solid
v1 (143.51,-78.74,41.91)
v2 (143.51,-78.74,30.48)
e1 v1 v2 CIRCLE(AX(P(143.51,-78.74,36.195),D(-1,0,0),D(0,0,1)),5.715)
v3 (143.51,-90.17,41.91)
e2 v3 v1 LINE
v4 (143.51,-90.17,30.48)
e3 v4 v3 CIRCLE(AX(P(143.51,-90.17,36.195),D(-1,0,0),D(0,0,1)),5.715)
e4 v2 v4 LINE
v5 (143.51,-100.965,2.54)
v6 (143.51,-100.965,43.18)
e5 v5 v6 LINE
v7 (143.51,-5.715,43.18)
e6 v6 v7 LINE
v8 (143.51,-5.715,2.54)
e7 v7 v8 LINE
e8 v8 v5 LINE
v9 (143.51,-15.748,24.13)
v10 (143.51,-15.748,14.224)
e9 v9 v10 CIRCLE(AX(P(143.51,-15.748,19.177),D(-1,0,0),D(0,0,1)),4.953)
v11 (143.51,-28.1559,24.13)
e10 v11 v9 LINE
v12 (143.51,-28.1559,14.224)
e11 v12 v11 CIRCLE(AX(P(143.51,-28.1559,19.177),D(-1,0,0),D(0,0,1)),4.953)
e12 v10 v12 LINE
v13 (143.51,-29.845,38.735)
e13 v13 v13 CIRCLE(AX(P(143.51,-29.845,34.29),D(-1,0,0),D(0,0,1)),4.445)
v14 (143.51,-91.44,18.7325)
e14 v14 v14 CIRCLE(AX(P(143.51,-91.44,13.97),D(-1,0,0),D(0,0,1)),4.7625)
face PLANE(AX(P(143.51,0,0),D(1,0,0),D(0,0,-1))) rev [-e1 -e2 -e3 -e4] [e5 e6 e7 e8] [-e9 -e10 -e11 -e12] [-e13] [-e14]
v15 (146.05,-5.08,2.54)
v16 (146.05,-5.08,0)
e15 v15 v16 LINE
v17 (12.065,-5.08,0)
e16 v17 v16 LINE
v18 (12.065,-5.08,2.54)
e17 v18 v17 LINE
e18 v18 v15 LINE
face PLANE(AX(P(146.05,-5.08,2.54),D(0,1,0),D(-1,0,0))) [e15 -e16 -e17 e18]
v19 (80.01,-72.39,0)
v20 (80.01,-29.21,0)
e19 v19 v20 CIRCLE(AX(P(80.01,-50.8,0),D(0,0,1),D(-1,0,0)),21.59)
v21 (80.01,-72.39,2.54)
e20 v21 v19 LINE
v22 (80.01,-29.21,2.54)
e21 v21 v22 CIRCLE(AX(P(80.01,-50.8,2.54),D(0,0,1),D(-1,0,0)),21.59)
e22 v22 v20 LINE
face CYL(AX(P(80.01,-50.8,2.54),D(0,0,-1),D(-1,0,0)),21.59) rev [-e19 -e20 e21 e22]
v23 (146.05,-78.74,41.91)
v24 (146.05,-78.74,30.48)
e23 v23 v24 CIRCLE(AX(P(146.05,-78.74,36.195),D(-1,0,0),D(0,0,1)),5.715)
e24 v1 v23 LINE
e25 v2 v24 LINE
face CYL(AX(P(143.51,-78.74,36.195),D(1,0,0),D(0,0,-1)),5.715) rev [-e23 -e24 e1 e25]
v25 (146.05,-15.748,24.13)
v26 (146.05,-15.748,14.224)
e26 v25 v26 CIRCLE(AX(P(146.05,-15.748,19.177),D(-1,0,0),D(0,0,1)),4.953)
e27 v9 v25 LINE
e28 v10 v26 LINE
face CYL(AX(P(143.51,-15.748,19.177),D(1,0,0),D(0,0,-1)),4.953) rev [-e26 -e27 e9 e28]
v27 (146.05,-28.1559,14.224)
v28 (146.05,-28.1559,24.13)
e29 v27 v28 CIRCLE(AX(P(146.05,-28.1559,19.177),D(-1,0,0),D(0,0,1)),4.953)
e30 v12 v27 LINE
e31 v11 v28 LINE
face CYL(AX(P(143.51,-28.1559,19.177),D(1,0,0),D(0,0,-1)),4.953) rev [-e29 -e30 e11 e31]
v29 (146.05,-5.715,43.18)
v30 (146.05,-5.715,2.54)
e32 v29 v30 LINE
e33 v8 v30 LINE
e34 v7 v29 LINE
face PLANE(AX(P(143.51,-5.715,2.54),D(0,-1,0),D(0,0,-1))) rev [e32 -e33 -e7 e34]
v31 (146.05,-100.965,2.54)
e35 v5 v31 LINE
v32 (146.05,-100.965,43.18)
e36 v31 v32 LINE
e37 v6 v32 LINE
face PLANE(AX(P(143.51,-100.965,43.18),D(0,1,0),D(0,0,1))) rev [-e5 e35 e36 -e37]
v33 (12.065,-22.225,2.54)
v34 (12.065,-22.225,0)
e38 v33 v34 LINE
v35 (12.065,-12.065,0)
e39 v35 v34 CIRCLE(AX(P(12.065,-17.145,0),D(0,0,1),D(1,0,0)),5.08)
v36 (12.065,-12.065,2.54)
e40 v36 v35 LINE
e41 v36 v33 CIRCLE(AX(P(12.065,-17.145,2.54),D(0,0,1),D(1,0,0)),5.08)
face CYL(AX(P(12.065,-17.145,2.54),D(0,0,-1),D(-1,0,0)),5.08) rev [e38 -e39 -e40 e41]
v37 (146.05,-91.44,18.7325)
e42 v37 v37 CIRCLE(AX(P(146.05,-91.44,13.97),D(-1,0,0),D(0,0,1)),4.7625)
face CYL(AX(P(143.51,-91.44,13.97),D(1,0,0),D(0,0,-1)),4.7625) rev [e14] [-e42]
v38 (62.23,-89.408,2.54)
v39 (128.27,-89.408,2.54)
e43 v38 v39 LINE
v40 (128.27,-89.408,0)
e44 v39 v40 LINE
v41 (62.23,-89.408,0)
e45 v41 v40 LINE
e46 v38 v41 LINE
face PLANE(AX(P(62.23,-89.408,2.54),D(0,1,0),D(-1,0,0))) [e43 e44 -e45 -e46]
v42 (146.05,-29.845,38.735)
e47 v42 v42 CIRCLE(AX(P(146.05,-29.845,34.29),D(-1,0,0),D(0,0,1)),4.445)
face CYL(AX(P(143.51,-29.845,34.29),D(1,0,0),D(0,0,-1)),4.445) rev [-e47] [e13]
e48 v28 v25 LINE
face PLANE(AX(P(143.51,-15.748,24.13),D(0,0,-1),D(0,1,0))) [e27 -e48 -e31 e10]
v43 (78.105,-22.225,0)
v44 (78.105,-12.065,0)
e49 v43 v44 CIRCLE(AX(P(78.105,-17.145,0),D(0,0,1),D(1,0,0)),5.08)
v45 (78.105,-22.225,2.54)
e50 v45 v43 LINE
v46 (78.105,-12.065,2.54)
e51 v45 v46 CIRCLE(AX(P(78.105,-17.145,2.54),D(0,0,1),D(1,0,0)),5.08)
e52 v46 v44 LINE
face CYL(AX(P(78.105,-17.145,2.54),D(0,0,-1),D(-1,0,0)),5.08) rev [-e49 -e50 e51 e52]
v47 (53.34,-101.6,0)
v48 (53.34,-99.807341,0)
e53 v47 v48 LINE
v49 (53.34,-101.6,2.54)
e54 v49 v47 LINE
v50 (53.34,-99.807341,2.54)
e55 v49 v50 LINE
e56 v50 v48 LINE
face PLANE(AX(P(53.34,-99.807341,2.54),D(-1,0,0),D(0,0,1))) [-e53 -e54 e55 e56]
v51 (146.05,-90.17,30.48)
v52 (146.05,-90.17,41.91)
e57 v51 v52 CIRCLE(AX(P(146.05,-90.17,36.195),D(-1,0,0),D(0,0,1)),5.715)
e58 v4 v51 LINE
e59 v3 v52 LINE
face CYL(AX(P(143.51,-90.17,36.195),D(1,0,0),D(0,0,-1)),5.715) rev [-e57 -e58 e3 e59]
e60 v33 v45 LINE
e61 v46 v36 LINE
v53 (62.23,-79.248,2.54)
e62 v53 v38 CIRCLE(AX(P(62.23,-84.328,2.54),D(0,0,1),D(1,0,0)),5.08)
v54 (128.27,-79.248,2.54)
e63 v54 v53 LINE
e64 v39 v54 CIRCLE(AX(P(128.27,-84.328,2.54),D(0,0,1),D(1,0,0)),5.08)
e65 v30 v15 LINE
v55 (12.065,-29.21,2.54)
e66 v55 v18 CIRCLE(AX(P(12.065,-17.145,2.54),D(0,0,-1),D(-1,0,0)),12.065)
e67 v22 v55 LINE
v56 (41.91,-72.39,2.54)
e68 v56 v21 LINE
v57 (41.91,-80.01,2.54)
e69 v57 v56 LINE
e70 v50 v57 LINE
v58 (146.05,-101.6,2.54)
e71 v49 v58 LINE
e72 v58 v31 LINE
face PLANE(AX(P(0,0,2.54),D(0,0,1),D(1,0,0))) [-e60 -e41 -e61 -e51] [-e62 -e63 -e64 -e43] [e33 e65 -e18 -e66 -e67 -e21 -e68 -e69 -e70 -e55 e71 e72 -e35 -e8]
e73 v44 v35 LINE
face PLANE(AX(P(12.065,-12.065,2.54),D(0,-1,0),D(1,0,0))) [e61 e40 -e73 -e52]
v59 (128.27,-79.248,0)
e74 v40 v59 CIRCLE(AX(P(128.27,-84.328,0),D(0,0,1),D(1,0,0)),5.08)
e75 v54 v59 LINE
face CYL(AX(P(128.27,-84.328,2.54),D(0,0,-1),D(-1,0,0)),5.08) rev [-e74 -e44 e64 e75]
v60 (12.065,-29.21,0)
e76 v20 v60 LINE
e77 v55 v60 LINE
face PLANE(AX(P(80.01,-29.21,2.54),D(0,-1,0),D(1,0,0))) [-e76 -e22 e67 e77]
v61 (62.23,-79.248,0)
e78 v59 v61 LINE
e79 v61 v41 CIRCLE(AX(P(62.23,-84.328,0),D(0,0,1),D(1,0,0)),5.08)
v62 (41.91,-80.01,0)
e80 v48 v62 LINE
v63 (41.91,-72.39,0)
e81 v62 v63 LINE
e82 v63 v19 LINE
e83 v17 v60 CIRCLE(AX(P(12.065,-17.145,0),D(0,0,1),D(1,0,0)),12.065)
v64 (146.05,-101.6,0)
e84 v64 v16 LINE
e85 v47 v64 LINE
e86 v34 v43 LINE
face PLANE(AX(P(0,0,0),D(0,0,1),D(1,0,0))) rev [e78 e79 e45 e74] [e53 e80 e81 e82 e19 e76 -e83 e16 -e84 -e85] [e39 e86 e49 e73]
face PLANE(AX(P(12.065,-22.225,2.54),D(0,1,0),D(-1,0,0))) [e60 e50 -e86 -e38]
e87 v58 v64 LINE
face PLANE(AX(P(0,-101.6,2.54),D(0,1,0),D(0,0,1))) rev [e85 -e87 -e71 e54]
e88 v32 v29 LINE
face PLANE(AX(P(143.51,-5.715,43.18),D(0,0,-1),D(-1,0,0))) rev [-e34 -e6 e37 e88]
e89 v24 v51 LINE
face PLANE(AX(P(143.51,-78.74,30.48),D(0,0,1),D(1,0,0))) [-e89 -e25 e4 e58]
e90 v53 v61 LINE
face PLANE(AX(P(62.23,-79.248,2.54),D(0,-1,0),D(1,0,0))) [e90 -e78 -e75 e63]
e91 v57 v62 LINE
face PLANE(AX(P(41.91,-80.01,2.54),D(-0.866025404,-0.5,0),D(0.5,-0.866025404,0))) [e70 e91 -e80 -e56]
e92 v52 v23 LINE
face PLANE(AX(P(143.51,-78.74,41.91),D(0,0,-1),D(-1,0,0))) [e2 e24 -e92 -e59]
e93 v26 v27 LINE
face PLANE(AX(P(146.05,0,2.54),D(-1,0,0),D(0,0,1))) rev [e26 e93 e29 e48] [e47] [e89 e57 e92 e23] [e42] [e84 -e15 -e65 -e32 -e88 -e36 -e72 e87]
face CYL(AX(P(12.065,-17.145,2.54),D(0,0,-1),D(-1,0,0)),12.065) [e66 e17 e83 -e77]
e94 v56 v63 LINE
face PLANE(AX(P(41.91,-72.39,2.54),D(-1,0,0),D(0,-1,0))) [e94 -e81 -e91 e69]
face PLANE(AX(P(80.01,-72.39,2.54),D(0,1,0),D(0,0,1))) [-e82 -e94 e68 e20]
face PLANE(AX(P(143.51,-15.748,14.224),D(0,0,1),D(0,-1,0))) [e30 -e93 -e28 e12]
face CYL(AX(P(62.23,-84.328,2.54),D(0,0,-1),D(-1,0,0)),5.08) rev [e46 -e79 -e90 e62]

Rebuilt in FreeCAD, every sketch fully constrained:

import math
import FreeCAD as App
import Part
import Sketcher

V = App.Vector
Q = App.Units.Quantity

doc = App.newDocument("Part")
params = doc.addObject("Spreadsheet::Sheet", "Params")
for row, (alias, value) in enumerate([
    ("sketch1_height", "4 in"),
    ("sketch1_width", "5.75 in"),
    ("pad1_length", "0.1 in"),
    ("sketch2_radius", "0.2 in"),
    ("sketch2_radius2", "0.85 in"),
    ("sketch2_width", "1.5 in"),
    ("sketch2_width2", "2.1 in"),
    ("sketch2_width3", "2.6 in"),
    ("sketch3_diameter", "0.35 in"),
    ("sketch3_diameter2", "0.375 in"),
    ("sketch3_height", "1.6 in"),
    ("sketch3_radius", "0.225 in"),
    ("sketch3_radius2", "0.195 in"),
    ("pad2_length", "0.1 in"),
], start=1):
    params.set(f"A{row}", alias)
    params.set(f"B{row}", "=" + value)
    params.setAlias(f"B{row}", alias)

body = doc.addObject("PartDesign::Body", "Body")

sketch1 = doc.addObject("Sketcher::SketchObject", "Sketch")
body.addObject(sketch1)
sketch1.AttachmentSupport = (doc.XY_Plane, [""])
sketch1.MapMode = "FlatFace"
sketch1.addGeometry(Part.LineSegment(V(0, 0, 0), V(0, -102, 0)), False)
sketch1.addGeometry(Part.LineSegment(V(0, -102, 0), V(146, -102, 0)), False)
sketch1.addGeometry(Part.LineSegment(V(146, -102, 0), V(146, 0, 0)), False)
sketch1.addGeometry(Part.LineSegment(V(146, 0, 0), V(0, 0, 0)), False)
sketch1.addConstraint(Sketcher.Constraint("Coincident", 0, 2, 1, 1))
sketch1.addConstraint(Sketcher.Constraint("Coincident", 1, 2, 2, 1))
sketch1.addConstraint(Sketcher.Constraint("Coincident", 2, 2, 3, 1))
sketch1.addConstraint(Sketcher.Constraint("Coincident", 3, 2, 0, 1))
sketch1.addConstraint(Sketcher.Constraint("Vertical", 0))
sketch1.addConstraint(Sketcher.Constraint("Horizontal", 1))
sketch1.addConstraint(Sketcher.Constraint("Vertical", 2))
sketch1.addConstraint(Sketcher.Constraint("Horizontal", 3))
sketch1.addConstraint(Sketcher.Constraint("Coincident", 3, 2, -1, 1))
sketch1.addConstraint(Sketcher.Constraint("DistanceY", 0, 2, 0, 1, Q("4 in")))
sketch1.addConstraint(Sketcher.Constraint("DistanceX", 1, 1, 1, 2, Q("5.75 in")))
sketch1.setExpression("Constraints[9]", "Params.sketch1_height")
sketch1.setExpression("Constraints[10]", "Params.sketch1_width")
pad1 = doc.addObject("PartDesign::Pad", "Pad")
body.addObject(pad1)
pad1.Profile = sketch1
pad1.setExpression("Length", "Params.pad1_length")

sketch2 = doc.addObject("Sketcher::SketchObject", "Sketch001")
body.addObject(sketch2)
sketch2.AttachmentSupport = (doc.XY_Plane, [""])
sketch2.MapMode = "FlatFace"
sketch2.addGeometry(Part.LineSegment(V(41.9, -72.4, 0), V(80, -72.4, 0)), False)
sketch2.addGeometry(Part.ArcOfCircle(Part.Circle(V(80, -50.8, 0), V(0, 0, 1), 21.6), math.radians(-90), math.radians(90)), False)
sketch2.addGeometry(Part.LineSegment(V(80, -29.2, 0), V(12.1, -29.2, 0)), False)
sketch2.addGeometry(Part.ArcOfCircle(Part.Circle(V(12.1, -17.1, 0), V(0, 0, 1), 12.1), math.radians(90), math.radians(270)), False)
sketch2.addGeometry(Part.LineSegment(V(12.1, -5.1, 0), V(146.1, -5.1, 0)), False)
sketch2.addGeometry(Part.LineSegment(V(146.1, -5.1, 0), V(146.1, 0, 0)), False)
sketch2.addGeometry(Part.LineSegment(V(146.1, 0, 0), V(-13.1, 0, 0)), False)
sketch2.addGeometry(Part.LineSegment(V(-13.1, 0, 0), V(-13.1, -29.2, 0)), False)
sketch2.addGeometry(Part.LineSegment(V(-13.1, -29.2, 0), V(0, -29.2, 0)), False)
sketch2.addGeometry(Part.LineSegment(V(0, -29.2, 0), V(0, -101.6, 0)), False)
sketch2.addGeometry(Part.LineSegment(V(0, -101.6, 0), V(53.3, -101.6, 0)), False)
sketch2.addGeometry(Part.LineSegment(V(53.3, -101.6, 0), V(53.3, -99.8, 0)), False)
sketch2.addGeometry(Part.LineSegment(V(53.3, -99.8, 0), V(41.9, -80, 0)), False)
sketch2.addGeometry(Part.LineSegment(V(41.9, -80, 0), V(41.9, -72.4, 0)), False)
sketch2.addGeometry(Part.LineSegment(V(78.1, -12.1, 0), V(12.1, -12.1, 0)), False)
sketch2.addGeometry(Part.ArcOfCircle(Part.Circle(V(12.1, -17.1, 0), V(0, 0, 1), 5.1), math.radians(90), math.radians(270)), False)
sketch2.addGeometry(Part.LineSegment(V(12.1, -22.2, 0), V(78.1, -22.2, 0)), False)
sketch2.addGeometry(Part.ArcOfCircle(Part.Circle(V(78.1, -17.1, 0), V(0, 0, 1), 5.1), math.radians(-90), math.radians(90)), False)
sketch2.addGeometry(Part.LineSegment(V(128.3, -79.2, 0), V(62.2, -79.2, 0)), False)
sketch2.addGeometry(Part.ArcOfCircle(Part.Circle(V(62.2, -84.3, 0), V(0, 0, 1), 5.1), math.radians(90), math.radians(270)), False)
sketch2.addGeometry(Part.LineSegment(V(62.2, -89.4, 0), V(128.3, -89.4, 0)), False)
sketch2.addGeometry(Part.ArcOfCircle(Part.Circle(V(128.3, -84.3, 0), V(0, 0, 1), 5.1), math.radians(-90), math.radians(90)), False)
sketch2.addConstraint(Sketcher.Constraint("Tangent", 0, 2, 1, 1))
sketch2.addConstraint(Sketcher.Constraint("Tangent", 1, 2, 2, 1))
sketch2.addConstraint(Sketcher.Constraint("Tangent", 2, 2, 3, 2))
sketch2.addConstraint(Sketcher.Constraint("Tangent", 3, 1, 4, 1))
sketch2.addConstraint(Sketcher.Constraint("Coincident", 4, 2, 5, 1))
sketch2.addConstraint(Sketcher.Constraint("Coincident", 5, 2, 6, 1))
sketch2.addConstraint(Sketcher.Constraint("Coincident", 6, 2, 7, 1))
sketch2.addConstraint(Sketcher.Constraint("Coincident", 7, 2, 8, 1))
sketch2.addConstraint(Sketcher.Constraint("Coincident", 8, 2, 9, 1))
sketch2.addConstraint(Sketcher.Constraint("Coincident", 9, 2, 10, 1))
sketch2.addConstraint(Sketcher.Constraint("Coincident", 10, 2, 11, 1))
sketch2.addConstraint(Sketcher.Constraint("Coincident", 11, 2, 12, 1))
sketch2.addConstraint(Sketcher.Constraint("Coincident", 12, 2, 13, 1))
sketch2.addConstraint(Sketcher.Constraint("Coincident", 13, 2, 0, 1))
sketch2.addConstraint(Sketcher.Constraint("Tangent", 14, 2, 15, 1))
sketch2.addConstraint(Sketcher.Constraint("Tangent", 15, 2, 16, 1))
sketch2.addConstraint(Sketcher.Constraint("Tangent", 16, 2, 17, 1))
sketch2.addConstraint(Sketcher.Constraint("Tangent", 17, 2, 14, 1))
sketch2.addConstraint(Sketcher.Constraint("Tangent", 18, 2, 19, 1))
sketch2.addConstraint(Sketcher.Constraint("Tangent", 19, 2, 20, 1))
sketch2.addConstraint(Sketcher.Constraint("Tangent", 20, 2, 21, 1))
sketch2.addConstraint(Sketcher.Constraint("Tangent", 21, 2, 18, 1))
sketch2.addConstraint(Sketcher.Constraint("Horizontal", 0))
sketch2.addConstraint(Sketcher.Constraint("Horizontal", 2))
sketch2.addConstraint(Sketcher.Constraint("Horizontal", 4))
sketch2.addConstraint(Sketcher.Constraint("Vertical", 5))
sketch2.addConstraint(Sketcher.Constraint("Horizontal", 6))
sketch2.addConstraint(Sketcher.Constraint("Vertical", 7))
sketch2.addConstraint(Sketcher.Constraint("Horizontal", 8))
sketch2.addConstraint(Sketcher.Constraint("Vertical", 9))
sketch2.addConstraint(Sketcher.Constraint("Horizontal", 10))
sketch2.addConstraint(Sketcher.Constraint("Vertical", 11))
sketch2.addConstraint(Sketcher.Constraint("Vertical", 13))
sketch2.addConstraint(Sketcher.Constraint("Horizontal", 14))
sketch2.addConstraint(Sketcher.Constraint("Horizontal", 16))
sketch2.addConstraint(Sketcher.Constraint("Horizontal", 18))
sketch2.addConstraint(Sketcher.Constraint("Horizontal", 20))
sketch2.addConstraint(Sketcher.Constraint("Coincident", 15, 3, 3, 3))
sketch2.addConstraint(Sketcher.Constraint("Equal", 17, 19))
sketch2.addConstraint(Sketcher.Constraint("PointOnObject", 5, 2, -1))
sketch2.addConstraint(Sketcher.Constraint("PointOnObject", 8, 2, -2))
sketch2.addConstraint(Sketcher.Constraint("Horizontal", 2, 2, 7, 2))
sketch2.addConstraint(Sketcher.Constraint("Equal", 16, 18))
sketch2.addConstraint(Sketcher.Constraint("Radius", 15, Q("0.2 in")))
sketch2.addConstraint(Sketcher.Constraint("Radius", 1, Q("0.85 in")))
sketch2.addConstraint(Sketcher.Constraint("DistanceX", 0, 1, 0, 2, Q("1.5 in")))
sketch2.addConstraint(Sketcher.Constraint("DistanceX", 10, 1, 10, 2, Q("2.1 in")))
sketch2.addConstraint(Sketcher.Constraint("DistanceX", 14, 2, 14, 1, Q("2.6 in")))
sketch2.addConstraint(Sketcher.Constraint("DistanceY", 5, 1, 5, 2, Q("0.2 in")))
sketch2.addConstraint(Sketcher.Constraint("DistanceY", 13, 1, 13, 2, Q("0.3 in")))
sketch2.addConstraint(Sketcher.Constraint("DistanceY", 1, 3, -1, 1, Q("2 in")))
sketch2.addConstraint(Sketcher.Constraint("DistanceY", 9, 2, -1, 1, Q("4 in")))
sketch2.addConstraint(Sketcher.Constraint("Angle", 12, Q("120 deg")))
sketch2.addConstraint(Sketcher.Constraint("Distance", 12, Q("0.9 in")))
sketch2.addConstraint(Sketcher.Constraint("DistanceX", 19, 3, 1, 3, Q("0.7 in")))
sketch2.addConstraint(Sketcher.Constraint("DistanceX", 1, 2, 4, 2, Q("2.6 in")))
sketch2.addConstraint(Sketcher.Constraint("DistanceX", 2, 2, 2, 1, Q("2.675 in")))
sketch2.addConstraint(Sketcher.Constraint("DistanceY", 19, 3, -1, 1, Q("3.32 in")))
sketch2.addConstraint(Sketcher.Constraint("DistanceX", 6, 2, 6, 1, Q("159.186118 mm")))
sketch2.setExpression("Constraints[43]", "Params.sketch2_radius")
sketch2.setExpression("Constraints[44]", "Params.sketch2_radius2")
sketch2.setExpression("Constraints[45]", "Params.sketch2_width")
sketch2.setExpression("Constraints[46]", "Params.sketch2_width2")
sketch2.setExpression("Constraints[47]", "Params.sketch2_width3")
pocket1 = doc.addObject("PartDesign::Pocket", "Pocket")
body.addObject(pocket1)
pocket1.Profile = sketch2
pocket1.Type = "ThroughAll"
pocket1.Reversed = True

sketch3 = doc.addObject("Sketcher::SketchObject", "Sketch002")
body.addObject(sketch3)
sketch3.AttachmentSupport = (doc.YZ_Plane, [""])
sketch3.MapMode = "FlatFace"
sketch3.AttachmentOffset = App.Placement(V(0, 0, 5.75 * 25.4), App.Rotation())
sketch3.addGeometry(Part.LineSegment(V(-5.7, 2.5, 0), V(-101, 2.5, 0)), False)
sketch3.addGeometry(Part.LineSegment(V(-101, 2.5, 0), V(-101, 43.2, 0)), False)
sketch3.addGeometry(Part.LineSegment(V(-101, 43.2, 0), V(-5.7, 43.2, 0)), False)
sketch3.addGeometry(Part.LineSegment(V(-5.7, 43.2, 0), V(-5.7, 2.5, 0)), False)
sketch3.addGeometry(Part.Circle(V(-91.4, 14, 0), V(0, 0, 1), 4.8), False)
sketch3.addGeometry(Part.ArcOfCircle(Part.Circle(V(-78.7, 36.2, 0), V(0, 0, 1), 5.7), math.radians(-90), math.radians(90)), False)
sketch3.addGeometry(Part.LineSegment(V(-78.7, 41.9, 0), V(-90.2, 41.9, 0)), False)
sketch3.addGeometry(Part.ArcOfCircle(Part.Circle(V(-90.2, 36.2, 0), V(0, 0, 1), 5.7), math.radians(90), math.radians(270)), False)
sketch3.addGeometry(Part.LineSegment(V(-90.2, 30.5, 0), V(-78.7, 30.5, 0)), False)
sketch3.addGeometry(Part.ArcOfCircle(Part.Circle(V(-15.7, 19.2, 0), V(0, 0, 1), 5), math.radians(-90), math.radians(90)), False)
sketch3.addGeometry(Part.LineSegment(V(-15.7, 24.1, 0), V(-28.2, 24.1, 0)), False)
sketch3.addGeometry(Part.ArcOfCircle(Part.Circle(V(-28.2, 19.2, 0), V(0, 0, 1), 5), math.radians(90), math.radians(270)), False)
sketch3.addGeometry(Part.LineSegment(V(-28.2, 14.2, 0), V(-15.7, 14.2, 0)), False)
sketch3.addGeometry(Part.Circle(V(-29.8, 34.3, 0), V(0, 0, 1), 4.4), False)
sketch3.addConstraint(Sketcher.Constraint("Coincident", 0, 2, 1, 1))
sketch3.addConstraint(Sketcher.Constraint("Coincident", 1, 2, 2, 1))
sketch3.addConstraint(Sketcher.Constraint("Coincident", 2, 2, 3, 1))
sketch3.addConstraint(Sketcher.Constraint("Coincident", 3, 2, 0, 1))
sketch3.addConstraint(Sketcher.Constraint("Tangent", 5, 2, 6, 1))
sketch3.addConstraint(Sketcher.Constraint("Tangent", 6, 2, 7, 1))
sketch3.addConstraint(Sketcher.Constraint("Tangent", 7, 2, 8, 1))
sketch3.addConstraint(Sketcher.Constraint("Tangent", 8, 2, 5, 1))
sketch3.addConstraint(Sketcher.Constraint("Tangent", 9, 2, 10, 1))
sketch3.addConstraint(Sketcher.Constraint("Tangent", 10, 2, 11, 1))
sketch3.addConstraint(Sketcher.Constraint("Tangent", 11, 2, 12, 1))
sketch3.addConstraint(Sketcher.Constraint("Tangent", 12, 2, 9, 1))
sketch3.addConstraint(Sketcher.Constraint("Horizontal", 0))
sketch3.addConstraint(Sketcher.Constraint("Vertical", 1))
sketch3.addConstraint(Sketcher.Constraint("Horizontal", 2))
sketch3.addConstraint(Sketcher.Constraint("Vertical", 3))
sketch3.addConstraint(Sketcher.Constraint("Horizontal", 6))
sketch3.addConstraint(Sketcher.Constraint("Horizontal", 8))
sketch3.addConstraint(Sketcher.Constraint("Horizontal", 10))
sketch3.addConstraint(Sketcher.Constraint("Horizontal", 12))
sketch3.addConstraint(Sketcher.Constraint("Diameter", 13, Q("0.35 in")))
sketch3.addConstraint(Sketcher.Constraint("Diameter", 4, Q("0.375 in")))
sketch3.addConstraint(Sketcher.Constraint("DistanceY", 1, 1, 1, 2, Q("1.6 in")))
sketch3.addConstraint(Sketcher.Constraint("Radius", 5, Q("0.225 in")))
sketch3.addConstraint(Sketcher.Constraint("Radius", 9, Q("0.195 in")))
sketch3.addConstraint(Sketcher.Constraint("DistanceX", 0, 2, 0, 1, Q("3.75 in")))
sketch3.addConstraint(Sketcher.Constraint("DistanceX", 6, 2, 6, 1, Q("0.45 in")))
sketch3.addConstraint(Sketcher.Constraint("DistanceX", 4, 3, -1, 1, Q("3.6 in")))
sketch3.addConstraint(Sketcher.Constraint("DistanceX", 5, 3, -1, 1, Q("3.1 in")))
sketch3.addConstraint(Sketcher.Constraint("DistanceY", -1, 1, 0, 2, Q("0.1 in")))
sketch3.addConstraint(Sketcher.Constraint("DistanceY", -1, 1, 7, 2, Q("1.2 in")))
sketch3.addConstraint(Sketcher.Constraint("DistanceY", 4, 3, 13, 3, Q("0.8 in")))
sketch3.addConstraint(Sketcher.Constraint("DistanceX", 0, 2, 13, 3, Q("2.8 in")))
sketch3.addConstraint(Sketcher.Constraint("DistanceY", 4, 3, 5, 2, Q("1.1 in")))
sketch3.addConstraint(Sketcher.Constraint("DistanceY", 9, 2, 13, 3, Q("0.4 in")))
sketch3.addConstraint(Sketcher.Constraint("DistanceX", 9, 3, -1, 1, Q("0.62 in")))
sketch3.addConstraint(Sketcher.Constraint("DistanceX", 10, 2, 10, 1, Q("0.4885 in")))
sketch3.addConstraint(Sketcher.Constraint("DistanceX", 13, 3, -1, 1, Q("1.175 in")))
sketch3.setExpression("Constraints[20]", "Params.sketch3_diameter")
sketch3.setExpression("Constraints[21]", "Params.sketch3_diameter2")
sketch3.setExpression("Constraints[22]", "Params.sketch3_height")
sketch3.setExpression("Constraints[23]", "Params.sketch3_radius")
sketch3.setExpression("Constraints[24]", "Params.sketch3_radius2")
pad2 = doc.addObject("PartDesign::Pad", "Pad001")
body.addObject(pad2)
pad2.Profile = sketch3
pad2.setExpression("Length", "Params.pad2_length")
pad2.Reversed = True

doc.recompute()
